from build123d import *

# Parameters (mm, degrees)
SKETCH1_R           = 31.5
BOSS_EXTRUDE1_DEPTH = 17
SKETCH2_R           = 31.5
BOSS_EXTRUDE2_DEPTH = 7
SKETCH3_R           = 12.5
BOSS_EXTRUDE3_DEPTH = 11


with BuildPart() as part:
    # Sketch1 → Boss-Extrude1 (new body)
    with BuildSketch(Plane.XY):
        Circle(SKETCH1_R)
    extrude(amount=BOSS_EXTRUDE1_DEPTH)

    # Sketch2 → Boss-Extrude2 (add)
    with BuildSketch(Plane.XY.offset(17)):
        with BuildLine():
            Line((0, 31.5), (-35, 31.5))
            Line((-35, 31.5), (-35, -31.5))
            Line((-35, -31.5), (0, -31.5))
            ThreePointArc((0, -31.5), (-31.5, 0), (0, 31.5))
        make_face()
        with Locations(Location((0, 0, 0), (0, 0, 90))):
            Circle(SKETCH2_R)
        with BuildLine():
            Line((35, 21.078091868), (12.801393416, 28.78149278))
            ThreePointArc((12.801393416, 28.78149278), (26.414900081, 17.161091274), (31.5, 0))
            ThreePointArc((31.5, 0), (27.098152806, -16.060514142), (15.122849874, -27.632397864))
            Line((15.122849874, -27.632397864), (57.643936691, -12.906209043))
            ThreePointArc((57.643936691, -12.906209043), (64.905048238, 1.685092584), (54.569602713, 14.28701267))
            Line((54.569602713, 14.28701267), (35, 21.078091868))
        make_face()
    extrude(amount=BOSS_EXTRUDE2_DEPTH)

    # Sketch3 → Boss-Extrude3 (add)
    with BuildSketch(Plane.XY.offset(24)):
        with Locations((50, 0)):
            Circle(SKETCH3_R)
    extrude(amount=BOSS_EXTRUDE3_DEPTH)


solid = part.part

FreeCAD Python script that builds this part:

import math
import FreeCAD as App
import Part
import Sketcher
Q = App.Units.Quantity

doc = App.newDocument("Part")
body = doc.addObject("PartDesign::Body", "Body")

sketch1 = doc.addObject("Sketcher::SketchObject", "Sketch")
body.addObject(sketch1)
sketch1.AttachmentSupport = (doc.XY_Plane, [""])
sketch1.MapMode = "FlatFace"
sketch1.addGeometry(Part.Circle(App.Vector(0, 0, 0), App.Vector(0, 0, 1), 32), False)
sketch1.addConstraint([
    Sketcher.Constraint("Coincident", 0, 3, -1, 1),
    Sketcher.Constraint("Diameter", 0, Q("63 mm")),
])
pad1 = doc.addObject("PartDesign::Pad", "Pad")
body.addObject(pad1)
pad1.Profile = sketch1
pad1.Length = 17

sketch2 = doc.addObject("Sketcher::SketchObject", "Sketch001")
body.addObject(sketch2)
sketch2.AttachmentSupport = (doc.XY_Plane, [""])
sketch2.MapMode = "FlatFace"
sketch2.AttachmentOffset = App.Placement(App.Vector(0, 0, 17), App.Rotation())
sketch2.addGeometry([
    Part.LineSegment(App.Vector(0, 32, 0), App.Vector(-35, 32, 0)),
    Part.LineSegment(App.Vector(-35, 32, 0), App.Vector(-35, -32, 0)),
    Part.LineSegment(App.Vector(-35, -32, 0), App.Vector(0, -32, 0)),
    Part.ArcOfCircle(Part.Circle(App.Vector(0, 0, 0), App.Vector(0, 0, 1), 32), math.radians(-90), math.radians(-61)),
    Part.LineSegment(App.Vector(15, -28, 0), App.Vector(58, -13, 0)),
    Part.ArcOfCircle(Part.Circle(App.Vector(50, 0, 0), App.Vector(0, 0, 1), 15), math.radians(-59), math.radians(72)),
    Part.LineSegment(App.Vector(55, 14, 0), App.Vector(35, 21, 0)),
    Part.LineSegment(App.Vector(35, 21, 0), App.Vector(13, 29, 0)),
    Part.ArcOfCircle(Part.Circle(App.Vector(0, 0, 0), App.Vector(0, 0, 1), 32), math.radians(66), math.radians(90)),
], False)
sketch2.addConstraint([
    Sketcher.Constraint("Coincident", 0, 2, 1, 1),
    Sketcher.Constraint("Coincident", 1, 2, 2, 1),
    Sketcher.Constraint("Tangent", 2, 2, 3, 1),
    Sketcher.Constraint("Coincident", 3, 2, 4, 1),
    Sketcher.Constraint("Coincident", 4, 2, 5, 1),
    Sketcher.Constraint("Coincident", 5, 2, 6, 1),
    Sketcher.Constraint("Coincident", 6, 2, 7, 1),
    Sketcher.Constraint("Coincident", 7, 2, 8, 1),
    Sketcher.Constraint("Tangent", 8, 2, 0, 1),
    Sketcher.Constraint("Horizontal", 0),
    Sketcher.Constraint("Vertical", 1),
    Sketcher.Constraint("Horizontal", 2),
    Sketcher.Constraint("Coincident", 3, 3, -1, 1),
    Sketcher.Constraint("Coincident", 8, 3, -1, 1),
    Sketcher.Constraint("Equal", 3, 8),
    Sketcher.Constraint("PointOnObject", 5, 3, -1),
    Sketcher.Constraint("Parallel", 6, 7),
    Sketcher.Constraint("Radius", 5, Q("15 mm")),
    Sketcher.Constraint("Radius", 3, Q("31.5 mm")),
    Sketcher.Constraint("DistanceX", 0, 2, 0, 1, Q("35 mm")),
    Sketcher.Constraint("DistanceX", -1, 1, 5, 3, Q("50 mm")),
    Sketcher.Constraint("DistanceX", -1, 1, 6, 2, Q("35 mm")),
    Sketcher.Constraint("DistanceY", 4, 2, 6, 2, Q("33.984301 mm")),
    Sketcher.Constraint("DistanceY", 6, 2, 7, 2, Q("7.703401 mm")),
    Sketcher.Constraint("Distance", 6, Q("20.714442 mm")),
    Sketcher.Constraint("DistanceX", -1, 1, 3, 2, Q("15.12285 mm")),
])
pad2 = doc.addObject("PartDesign::Pad", "Pad001")
body.addObject(pad2)
pad2.Profile = sketch2
pad2.Length = 7

sketch3 = doc.addObject("Sketcher::SketchObject", "Sketch002")
body.addObject(sketch3)
sketch3.AttachmentSupport = (doc.XY_Plane, [""])
sketch3.MapMode = "FlatFace"
sketch3.AttachmentOffset = App.Placement(App.Vector(0, 0, 24), App.Rotation())
sketch3.addGeometry(Part.Circle(App.Vector(50, 0, 0), App.Vector(0, 0, 1), 12), False)
sketch3.addConstraint([
    Sketcher.Constraint("PointOnObject", 0, 3, -1),
    Sketcher.Constraint("Diameter", 0, Q("25 mm")),
    Sketcher.Constraint("DistanceX", -1, 1, 0, 3, Q("50 mm")),
])
pad3 = doc.addObject("PartDesign::Pad", "Pad002")
body.addObject(pad3)
pad3.Profile = sketch3
pad3.Length = 11

doc.recompute()
